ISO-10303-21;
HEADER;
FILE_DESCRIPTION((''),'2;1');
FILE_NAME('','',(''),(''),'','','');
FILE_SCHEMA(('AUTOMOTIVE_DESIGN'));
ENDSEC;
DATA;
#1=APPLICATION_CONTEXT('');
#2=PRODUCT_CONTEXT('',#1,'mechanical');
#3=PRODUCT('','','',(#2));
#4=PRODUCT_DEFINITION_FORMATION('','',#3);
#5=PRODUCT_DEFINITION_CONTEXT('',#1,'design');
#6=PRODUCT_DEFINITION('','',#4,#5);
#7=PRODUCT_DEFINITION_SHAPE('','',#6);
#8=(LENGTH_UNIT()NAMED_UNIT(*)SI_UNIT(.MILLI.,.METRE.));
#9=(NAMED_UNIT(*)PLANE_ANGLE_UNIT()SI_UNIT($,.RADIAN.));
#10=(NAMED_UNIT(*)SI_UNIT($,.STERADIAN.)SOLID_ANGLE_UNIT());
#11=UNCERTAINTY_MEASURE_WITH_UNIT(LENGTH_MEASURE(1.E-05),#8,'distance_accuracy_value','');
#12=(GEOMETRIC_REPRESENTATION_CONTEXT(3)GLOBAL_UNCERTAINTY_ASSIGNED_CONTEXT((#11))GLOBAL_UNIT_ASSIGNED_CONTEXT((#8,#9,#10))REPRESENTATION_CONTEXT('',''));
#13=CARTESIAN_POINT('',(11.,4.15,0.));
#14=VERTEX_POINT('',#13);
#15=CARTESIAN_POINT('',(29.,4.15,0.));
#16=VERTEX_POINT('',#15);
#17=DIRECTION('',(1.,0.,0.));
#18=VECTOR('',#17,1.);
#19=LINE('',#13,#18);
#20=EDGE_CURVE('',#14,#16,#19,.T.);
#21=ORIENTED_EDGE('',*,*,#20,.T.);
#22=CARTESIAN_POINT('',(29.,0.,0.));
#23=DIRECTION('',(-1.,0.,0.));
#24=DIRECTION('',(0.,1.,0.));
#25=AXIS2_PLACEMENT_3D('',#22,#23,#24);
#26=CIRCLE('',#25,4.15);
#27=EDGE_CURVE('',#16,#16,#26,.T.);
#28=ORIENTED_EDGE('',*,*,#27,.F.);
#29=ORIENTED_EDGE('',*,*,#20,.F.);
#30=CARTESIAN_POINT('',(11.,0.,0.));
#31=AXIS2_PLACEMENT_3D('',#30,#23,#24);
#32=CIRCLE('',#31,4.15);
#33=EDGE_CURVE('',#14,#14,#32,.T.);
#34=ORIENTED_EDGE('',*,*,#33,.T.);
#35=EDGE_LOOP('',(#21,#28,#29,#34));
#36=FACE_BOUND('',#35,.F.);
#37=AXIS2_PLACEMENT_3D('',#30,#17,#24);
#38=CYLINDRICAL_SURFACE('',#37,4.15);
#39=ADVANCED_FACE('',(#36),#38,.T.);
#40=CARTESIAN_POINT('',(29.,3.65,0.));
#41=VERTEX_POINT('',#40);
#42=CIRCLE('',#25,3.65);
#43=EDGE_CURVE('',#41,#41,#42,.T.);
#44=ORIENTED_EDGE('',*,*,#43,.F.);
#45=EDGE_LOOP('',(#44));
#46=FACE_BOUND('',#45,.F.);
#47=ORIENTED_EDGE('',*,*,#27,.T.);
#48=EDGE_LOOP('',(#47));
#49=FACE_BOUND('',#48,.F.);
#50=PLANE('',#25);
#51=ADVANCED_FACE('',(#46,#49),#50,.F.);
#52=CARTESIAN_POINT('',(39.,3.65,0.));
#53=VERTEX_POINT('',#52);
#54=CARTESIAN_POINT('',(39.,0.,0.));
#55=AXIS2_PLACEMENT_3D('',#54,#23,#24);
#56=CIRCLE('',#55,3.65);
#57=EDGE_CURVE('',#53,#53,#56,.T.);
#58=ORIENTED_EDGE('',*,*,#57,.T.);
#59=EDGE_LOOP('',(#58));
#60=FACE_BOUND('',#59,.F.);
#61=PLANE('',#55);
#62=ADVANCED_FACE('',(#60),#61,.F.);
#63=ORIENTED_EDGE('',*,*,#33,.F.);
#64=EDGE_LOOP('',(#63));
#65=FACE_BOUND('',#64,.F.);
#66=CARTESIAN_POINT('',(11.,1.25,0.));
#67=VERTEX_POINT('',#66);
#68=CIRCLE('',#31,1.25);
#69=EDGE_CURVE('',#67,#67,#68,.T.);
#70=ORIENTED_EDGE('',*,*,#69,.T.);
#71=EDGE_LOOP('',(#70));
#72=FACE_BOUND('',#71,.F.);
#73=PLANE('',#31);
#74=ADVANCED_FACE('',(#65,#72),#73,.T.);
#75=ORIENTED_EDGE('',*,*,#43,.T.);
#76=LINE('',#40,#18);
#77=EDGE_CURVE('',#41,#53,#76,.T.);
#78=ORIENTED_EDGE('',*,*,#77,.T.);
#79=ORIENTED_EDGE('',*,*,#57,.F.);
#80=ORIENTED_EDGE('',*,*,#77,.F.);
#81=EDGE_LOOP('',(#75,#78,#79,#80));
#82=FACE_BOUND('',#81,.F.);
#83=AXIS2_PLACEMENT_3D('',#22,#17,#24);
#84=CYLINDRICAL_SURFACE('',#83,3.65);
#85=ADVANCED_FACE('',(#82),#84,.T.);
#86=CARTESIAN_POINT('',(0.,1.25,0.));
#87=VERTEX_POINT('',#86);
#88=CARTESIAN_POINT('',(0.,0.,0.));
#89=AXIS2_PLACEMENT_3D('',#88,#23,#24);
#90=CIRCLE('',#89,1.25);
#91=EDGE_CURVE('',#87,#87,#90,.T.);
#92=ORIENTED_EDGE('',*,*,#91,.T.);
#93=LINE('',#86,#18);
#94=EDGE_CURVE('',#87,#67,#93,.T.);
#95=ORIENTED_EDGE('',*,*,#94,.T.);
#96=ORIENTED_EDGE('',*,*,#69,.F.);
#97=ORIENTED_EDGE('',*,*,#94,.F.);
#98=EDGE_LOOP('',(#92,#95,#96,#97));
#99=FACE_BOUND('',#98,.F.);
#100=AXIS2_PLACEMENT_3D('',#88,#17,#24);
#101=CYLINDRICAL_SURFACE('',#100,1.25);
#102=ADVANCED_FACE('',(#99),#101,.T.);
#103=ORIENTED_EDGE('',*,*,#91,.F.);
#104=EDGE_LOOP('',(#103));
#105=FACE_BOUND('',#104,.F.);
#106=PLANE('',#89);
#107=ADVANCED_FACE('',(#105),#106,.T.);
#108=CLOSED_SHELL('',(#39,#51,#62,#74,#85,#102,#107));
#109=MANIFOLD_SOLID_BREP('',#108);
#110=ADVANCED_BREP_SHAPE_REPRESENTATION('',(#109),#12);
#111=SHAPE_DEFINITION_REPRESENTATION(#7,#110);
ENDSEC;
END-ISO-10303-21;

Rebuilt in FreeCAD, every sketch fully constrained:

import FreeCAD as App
import Part
import Sketcher
from FreeCAD import Vector

doc = App.newDocument("Part")
body = doc.addObject("PartDesign::Body", "Body")

sketch1 = body.newObject("Sketcher::SketchObject", "Sketch")
sketch1.AttachmentSupport = (doc.getObject("XY_Plane"), [""])
sketch1.MapMode = "FlatFace"
sketch1.addGeometry(Part.LineSegment(Vector(0, 1.2, 0), Vector(0, 0, 0)), False)
sketch1.addGeometry(Part.LineSegment(Vector(0, 0, 0), Vector(39, 0, 0)), False)
sketch1.addGeometry(Part.LineSegment(Vector(39, 0, 0), Vector(39, 3.6, 0)), False)
sketch1.addGeometry(Part.LineSegment(Vector(39, 3.6, 0), Vector(29, 3.6, 0)), False)
sketch1.addGeometry(Part.LineSegment(Vector(29, 3.6, 0), Vector(29, 4.2, 0)), False)
sketch1.addGeometry(Part.LineSegment(Vector(29, 4.2, 0), Vector(11, 4.2, 0)), False)
sketch1.addGeometry(Part.LineSegment(Vector(11, 4.2, 0), Vector(11, 1.2, 0)), False)
sketch1.addGeometry(Part.LineSegment(Vector(11, 1.2, 0), Vector(0, 1.2, 0)), False)
sketch1.addConstraint(Sketcher.Constraint("Coincident", 0, 2, 1, 1))
sketch1.addConstraint(Sketcher.Constraint("Coincident", 1, 2, 2, 1))
sketch1.addConstraint(Sketcher.Constraint("Coincident", 2, 2, 3, 1))
sketch1.addConstraint(Sketcher.Constraint("Coincident", 3, 2, 4, 1))
sketch1.addConstraint(Sketcher.Constraint("Coincident", 4, 2, 5, 1))
sketch1.addConstraint(Sketcher.Constraint("Coincident", 5, 2, 6, 1))
sketch1.addConstraint(Sketcher.Constraint("Coincident", 6, 2, 7, 1))
sketch1.addConstraint(Sketcher.Constraint("Coincident", 7, 2, 0, 1))
sketch1.addConstraint(Sketcher.Constraint("Vertical", 0))
sketch1.addConstraint(Sketcher.Constraint("Horizontal", 1))
sketch1.addConstraint(Sketcher.Constraint("Vertical", 2))
sketch1.addConstraint(Sketcher.Constraint("Horizontal", 3))
sketch1.addConstraint(Sketcher.Constraint("Vertical", 4))
sketch1.addConstraint(Sketcher.Constraint("Horizontal", 5))
sketch1.addConstraint(Sketcher.Constraint("Vertical", 6))
sketch1.addConstraint(Sketcher.Constraint("Horizontal", 7))
sketch1.addConstraint(Sketcher.Constraint("Coincident", 0, 2, -1, 1))
sketch1.addConstraint(Sketcher.Constraint("DistanceX", 3, 2, 3, 1, 10.0))
sketch1.addConstraint(Sketcher.Constraint("DistanceX", 5, 2, 5, 1, 18.0))
sketch1.addConstraint(Sketcher.Constraint("DistanceX", 7, 2, 7, 1, 11.0))
sketch1.addConstraint(Sketcher.Constraint("DistanceY", 4, 1, 4, 2, 0.5))
sketch1.addConstraint(Sketcher.Constraint("DistanceY", 0, 2, 0, 1, 1.25))
sketch1.addConstraint(Sketcher.Constraint("DistanceY", -1, 1, 4, 2, 4.15))
revolution = body.newObject("PartDesign::Revolution", "Revolution")
revolution.Profile = sketch1
revolution.ReferenceAxis = (sketch1, ["H_Axis"])
revolution.Angle = 360

doc.recompute()
